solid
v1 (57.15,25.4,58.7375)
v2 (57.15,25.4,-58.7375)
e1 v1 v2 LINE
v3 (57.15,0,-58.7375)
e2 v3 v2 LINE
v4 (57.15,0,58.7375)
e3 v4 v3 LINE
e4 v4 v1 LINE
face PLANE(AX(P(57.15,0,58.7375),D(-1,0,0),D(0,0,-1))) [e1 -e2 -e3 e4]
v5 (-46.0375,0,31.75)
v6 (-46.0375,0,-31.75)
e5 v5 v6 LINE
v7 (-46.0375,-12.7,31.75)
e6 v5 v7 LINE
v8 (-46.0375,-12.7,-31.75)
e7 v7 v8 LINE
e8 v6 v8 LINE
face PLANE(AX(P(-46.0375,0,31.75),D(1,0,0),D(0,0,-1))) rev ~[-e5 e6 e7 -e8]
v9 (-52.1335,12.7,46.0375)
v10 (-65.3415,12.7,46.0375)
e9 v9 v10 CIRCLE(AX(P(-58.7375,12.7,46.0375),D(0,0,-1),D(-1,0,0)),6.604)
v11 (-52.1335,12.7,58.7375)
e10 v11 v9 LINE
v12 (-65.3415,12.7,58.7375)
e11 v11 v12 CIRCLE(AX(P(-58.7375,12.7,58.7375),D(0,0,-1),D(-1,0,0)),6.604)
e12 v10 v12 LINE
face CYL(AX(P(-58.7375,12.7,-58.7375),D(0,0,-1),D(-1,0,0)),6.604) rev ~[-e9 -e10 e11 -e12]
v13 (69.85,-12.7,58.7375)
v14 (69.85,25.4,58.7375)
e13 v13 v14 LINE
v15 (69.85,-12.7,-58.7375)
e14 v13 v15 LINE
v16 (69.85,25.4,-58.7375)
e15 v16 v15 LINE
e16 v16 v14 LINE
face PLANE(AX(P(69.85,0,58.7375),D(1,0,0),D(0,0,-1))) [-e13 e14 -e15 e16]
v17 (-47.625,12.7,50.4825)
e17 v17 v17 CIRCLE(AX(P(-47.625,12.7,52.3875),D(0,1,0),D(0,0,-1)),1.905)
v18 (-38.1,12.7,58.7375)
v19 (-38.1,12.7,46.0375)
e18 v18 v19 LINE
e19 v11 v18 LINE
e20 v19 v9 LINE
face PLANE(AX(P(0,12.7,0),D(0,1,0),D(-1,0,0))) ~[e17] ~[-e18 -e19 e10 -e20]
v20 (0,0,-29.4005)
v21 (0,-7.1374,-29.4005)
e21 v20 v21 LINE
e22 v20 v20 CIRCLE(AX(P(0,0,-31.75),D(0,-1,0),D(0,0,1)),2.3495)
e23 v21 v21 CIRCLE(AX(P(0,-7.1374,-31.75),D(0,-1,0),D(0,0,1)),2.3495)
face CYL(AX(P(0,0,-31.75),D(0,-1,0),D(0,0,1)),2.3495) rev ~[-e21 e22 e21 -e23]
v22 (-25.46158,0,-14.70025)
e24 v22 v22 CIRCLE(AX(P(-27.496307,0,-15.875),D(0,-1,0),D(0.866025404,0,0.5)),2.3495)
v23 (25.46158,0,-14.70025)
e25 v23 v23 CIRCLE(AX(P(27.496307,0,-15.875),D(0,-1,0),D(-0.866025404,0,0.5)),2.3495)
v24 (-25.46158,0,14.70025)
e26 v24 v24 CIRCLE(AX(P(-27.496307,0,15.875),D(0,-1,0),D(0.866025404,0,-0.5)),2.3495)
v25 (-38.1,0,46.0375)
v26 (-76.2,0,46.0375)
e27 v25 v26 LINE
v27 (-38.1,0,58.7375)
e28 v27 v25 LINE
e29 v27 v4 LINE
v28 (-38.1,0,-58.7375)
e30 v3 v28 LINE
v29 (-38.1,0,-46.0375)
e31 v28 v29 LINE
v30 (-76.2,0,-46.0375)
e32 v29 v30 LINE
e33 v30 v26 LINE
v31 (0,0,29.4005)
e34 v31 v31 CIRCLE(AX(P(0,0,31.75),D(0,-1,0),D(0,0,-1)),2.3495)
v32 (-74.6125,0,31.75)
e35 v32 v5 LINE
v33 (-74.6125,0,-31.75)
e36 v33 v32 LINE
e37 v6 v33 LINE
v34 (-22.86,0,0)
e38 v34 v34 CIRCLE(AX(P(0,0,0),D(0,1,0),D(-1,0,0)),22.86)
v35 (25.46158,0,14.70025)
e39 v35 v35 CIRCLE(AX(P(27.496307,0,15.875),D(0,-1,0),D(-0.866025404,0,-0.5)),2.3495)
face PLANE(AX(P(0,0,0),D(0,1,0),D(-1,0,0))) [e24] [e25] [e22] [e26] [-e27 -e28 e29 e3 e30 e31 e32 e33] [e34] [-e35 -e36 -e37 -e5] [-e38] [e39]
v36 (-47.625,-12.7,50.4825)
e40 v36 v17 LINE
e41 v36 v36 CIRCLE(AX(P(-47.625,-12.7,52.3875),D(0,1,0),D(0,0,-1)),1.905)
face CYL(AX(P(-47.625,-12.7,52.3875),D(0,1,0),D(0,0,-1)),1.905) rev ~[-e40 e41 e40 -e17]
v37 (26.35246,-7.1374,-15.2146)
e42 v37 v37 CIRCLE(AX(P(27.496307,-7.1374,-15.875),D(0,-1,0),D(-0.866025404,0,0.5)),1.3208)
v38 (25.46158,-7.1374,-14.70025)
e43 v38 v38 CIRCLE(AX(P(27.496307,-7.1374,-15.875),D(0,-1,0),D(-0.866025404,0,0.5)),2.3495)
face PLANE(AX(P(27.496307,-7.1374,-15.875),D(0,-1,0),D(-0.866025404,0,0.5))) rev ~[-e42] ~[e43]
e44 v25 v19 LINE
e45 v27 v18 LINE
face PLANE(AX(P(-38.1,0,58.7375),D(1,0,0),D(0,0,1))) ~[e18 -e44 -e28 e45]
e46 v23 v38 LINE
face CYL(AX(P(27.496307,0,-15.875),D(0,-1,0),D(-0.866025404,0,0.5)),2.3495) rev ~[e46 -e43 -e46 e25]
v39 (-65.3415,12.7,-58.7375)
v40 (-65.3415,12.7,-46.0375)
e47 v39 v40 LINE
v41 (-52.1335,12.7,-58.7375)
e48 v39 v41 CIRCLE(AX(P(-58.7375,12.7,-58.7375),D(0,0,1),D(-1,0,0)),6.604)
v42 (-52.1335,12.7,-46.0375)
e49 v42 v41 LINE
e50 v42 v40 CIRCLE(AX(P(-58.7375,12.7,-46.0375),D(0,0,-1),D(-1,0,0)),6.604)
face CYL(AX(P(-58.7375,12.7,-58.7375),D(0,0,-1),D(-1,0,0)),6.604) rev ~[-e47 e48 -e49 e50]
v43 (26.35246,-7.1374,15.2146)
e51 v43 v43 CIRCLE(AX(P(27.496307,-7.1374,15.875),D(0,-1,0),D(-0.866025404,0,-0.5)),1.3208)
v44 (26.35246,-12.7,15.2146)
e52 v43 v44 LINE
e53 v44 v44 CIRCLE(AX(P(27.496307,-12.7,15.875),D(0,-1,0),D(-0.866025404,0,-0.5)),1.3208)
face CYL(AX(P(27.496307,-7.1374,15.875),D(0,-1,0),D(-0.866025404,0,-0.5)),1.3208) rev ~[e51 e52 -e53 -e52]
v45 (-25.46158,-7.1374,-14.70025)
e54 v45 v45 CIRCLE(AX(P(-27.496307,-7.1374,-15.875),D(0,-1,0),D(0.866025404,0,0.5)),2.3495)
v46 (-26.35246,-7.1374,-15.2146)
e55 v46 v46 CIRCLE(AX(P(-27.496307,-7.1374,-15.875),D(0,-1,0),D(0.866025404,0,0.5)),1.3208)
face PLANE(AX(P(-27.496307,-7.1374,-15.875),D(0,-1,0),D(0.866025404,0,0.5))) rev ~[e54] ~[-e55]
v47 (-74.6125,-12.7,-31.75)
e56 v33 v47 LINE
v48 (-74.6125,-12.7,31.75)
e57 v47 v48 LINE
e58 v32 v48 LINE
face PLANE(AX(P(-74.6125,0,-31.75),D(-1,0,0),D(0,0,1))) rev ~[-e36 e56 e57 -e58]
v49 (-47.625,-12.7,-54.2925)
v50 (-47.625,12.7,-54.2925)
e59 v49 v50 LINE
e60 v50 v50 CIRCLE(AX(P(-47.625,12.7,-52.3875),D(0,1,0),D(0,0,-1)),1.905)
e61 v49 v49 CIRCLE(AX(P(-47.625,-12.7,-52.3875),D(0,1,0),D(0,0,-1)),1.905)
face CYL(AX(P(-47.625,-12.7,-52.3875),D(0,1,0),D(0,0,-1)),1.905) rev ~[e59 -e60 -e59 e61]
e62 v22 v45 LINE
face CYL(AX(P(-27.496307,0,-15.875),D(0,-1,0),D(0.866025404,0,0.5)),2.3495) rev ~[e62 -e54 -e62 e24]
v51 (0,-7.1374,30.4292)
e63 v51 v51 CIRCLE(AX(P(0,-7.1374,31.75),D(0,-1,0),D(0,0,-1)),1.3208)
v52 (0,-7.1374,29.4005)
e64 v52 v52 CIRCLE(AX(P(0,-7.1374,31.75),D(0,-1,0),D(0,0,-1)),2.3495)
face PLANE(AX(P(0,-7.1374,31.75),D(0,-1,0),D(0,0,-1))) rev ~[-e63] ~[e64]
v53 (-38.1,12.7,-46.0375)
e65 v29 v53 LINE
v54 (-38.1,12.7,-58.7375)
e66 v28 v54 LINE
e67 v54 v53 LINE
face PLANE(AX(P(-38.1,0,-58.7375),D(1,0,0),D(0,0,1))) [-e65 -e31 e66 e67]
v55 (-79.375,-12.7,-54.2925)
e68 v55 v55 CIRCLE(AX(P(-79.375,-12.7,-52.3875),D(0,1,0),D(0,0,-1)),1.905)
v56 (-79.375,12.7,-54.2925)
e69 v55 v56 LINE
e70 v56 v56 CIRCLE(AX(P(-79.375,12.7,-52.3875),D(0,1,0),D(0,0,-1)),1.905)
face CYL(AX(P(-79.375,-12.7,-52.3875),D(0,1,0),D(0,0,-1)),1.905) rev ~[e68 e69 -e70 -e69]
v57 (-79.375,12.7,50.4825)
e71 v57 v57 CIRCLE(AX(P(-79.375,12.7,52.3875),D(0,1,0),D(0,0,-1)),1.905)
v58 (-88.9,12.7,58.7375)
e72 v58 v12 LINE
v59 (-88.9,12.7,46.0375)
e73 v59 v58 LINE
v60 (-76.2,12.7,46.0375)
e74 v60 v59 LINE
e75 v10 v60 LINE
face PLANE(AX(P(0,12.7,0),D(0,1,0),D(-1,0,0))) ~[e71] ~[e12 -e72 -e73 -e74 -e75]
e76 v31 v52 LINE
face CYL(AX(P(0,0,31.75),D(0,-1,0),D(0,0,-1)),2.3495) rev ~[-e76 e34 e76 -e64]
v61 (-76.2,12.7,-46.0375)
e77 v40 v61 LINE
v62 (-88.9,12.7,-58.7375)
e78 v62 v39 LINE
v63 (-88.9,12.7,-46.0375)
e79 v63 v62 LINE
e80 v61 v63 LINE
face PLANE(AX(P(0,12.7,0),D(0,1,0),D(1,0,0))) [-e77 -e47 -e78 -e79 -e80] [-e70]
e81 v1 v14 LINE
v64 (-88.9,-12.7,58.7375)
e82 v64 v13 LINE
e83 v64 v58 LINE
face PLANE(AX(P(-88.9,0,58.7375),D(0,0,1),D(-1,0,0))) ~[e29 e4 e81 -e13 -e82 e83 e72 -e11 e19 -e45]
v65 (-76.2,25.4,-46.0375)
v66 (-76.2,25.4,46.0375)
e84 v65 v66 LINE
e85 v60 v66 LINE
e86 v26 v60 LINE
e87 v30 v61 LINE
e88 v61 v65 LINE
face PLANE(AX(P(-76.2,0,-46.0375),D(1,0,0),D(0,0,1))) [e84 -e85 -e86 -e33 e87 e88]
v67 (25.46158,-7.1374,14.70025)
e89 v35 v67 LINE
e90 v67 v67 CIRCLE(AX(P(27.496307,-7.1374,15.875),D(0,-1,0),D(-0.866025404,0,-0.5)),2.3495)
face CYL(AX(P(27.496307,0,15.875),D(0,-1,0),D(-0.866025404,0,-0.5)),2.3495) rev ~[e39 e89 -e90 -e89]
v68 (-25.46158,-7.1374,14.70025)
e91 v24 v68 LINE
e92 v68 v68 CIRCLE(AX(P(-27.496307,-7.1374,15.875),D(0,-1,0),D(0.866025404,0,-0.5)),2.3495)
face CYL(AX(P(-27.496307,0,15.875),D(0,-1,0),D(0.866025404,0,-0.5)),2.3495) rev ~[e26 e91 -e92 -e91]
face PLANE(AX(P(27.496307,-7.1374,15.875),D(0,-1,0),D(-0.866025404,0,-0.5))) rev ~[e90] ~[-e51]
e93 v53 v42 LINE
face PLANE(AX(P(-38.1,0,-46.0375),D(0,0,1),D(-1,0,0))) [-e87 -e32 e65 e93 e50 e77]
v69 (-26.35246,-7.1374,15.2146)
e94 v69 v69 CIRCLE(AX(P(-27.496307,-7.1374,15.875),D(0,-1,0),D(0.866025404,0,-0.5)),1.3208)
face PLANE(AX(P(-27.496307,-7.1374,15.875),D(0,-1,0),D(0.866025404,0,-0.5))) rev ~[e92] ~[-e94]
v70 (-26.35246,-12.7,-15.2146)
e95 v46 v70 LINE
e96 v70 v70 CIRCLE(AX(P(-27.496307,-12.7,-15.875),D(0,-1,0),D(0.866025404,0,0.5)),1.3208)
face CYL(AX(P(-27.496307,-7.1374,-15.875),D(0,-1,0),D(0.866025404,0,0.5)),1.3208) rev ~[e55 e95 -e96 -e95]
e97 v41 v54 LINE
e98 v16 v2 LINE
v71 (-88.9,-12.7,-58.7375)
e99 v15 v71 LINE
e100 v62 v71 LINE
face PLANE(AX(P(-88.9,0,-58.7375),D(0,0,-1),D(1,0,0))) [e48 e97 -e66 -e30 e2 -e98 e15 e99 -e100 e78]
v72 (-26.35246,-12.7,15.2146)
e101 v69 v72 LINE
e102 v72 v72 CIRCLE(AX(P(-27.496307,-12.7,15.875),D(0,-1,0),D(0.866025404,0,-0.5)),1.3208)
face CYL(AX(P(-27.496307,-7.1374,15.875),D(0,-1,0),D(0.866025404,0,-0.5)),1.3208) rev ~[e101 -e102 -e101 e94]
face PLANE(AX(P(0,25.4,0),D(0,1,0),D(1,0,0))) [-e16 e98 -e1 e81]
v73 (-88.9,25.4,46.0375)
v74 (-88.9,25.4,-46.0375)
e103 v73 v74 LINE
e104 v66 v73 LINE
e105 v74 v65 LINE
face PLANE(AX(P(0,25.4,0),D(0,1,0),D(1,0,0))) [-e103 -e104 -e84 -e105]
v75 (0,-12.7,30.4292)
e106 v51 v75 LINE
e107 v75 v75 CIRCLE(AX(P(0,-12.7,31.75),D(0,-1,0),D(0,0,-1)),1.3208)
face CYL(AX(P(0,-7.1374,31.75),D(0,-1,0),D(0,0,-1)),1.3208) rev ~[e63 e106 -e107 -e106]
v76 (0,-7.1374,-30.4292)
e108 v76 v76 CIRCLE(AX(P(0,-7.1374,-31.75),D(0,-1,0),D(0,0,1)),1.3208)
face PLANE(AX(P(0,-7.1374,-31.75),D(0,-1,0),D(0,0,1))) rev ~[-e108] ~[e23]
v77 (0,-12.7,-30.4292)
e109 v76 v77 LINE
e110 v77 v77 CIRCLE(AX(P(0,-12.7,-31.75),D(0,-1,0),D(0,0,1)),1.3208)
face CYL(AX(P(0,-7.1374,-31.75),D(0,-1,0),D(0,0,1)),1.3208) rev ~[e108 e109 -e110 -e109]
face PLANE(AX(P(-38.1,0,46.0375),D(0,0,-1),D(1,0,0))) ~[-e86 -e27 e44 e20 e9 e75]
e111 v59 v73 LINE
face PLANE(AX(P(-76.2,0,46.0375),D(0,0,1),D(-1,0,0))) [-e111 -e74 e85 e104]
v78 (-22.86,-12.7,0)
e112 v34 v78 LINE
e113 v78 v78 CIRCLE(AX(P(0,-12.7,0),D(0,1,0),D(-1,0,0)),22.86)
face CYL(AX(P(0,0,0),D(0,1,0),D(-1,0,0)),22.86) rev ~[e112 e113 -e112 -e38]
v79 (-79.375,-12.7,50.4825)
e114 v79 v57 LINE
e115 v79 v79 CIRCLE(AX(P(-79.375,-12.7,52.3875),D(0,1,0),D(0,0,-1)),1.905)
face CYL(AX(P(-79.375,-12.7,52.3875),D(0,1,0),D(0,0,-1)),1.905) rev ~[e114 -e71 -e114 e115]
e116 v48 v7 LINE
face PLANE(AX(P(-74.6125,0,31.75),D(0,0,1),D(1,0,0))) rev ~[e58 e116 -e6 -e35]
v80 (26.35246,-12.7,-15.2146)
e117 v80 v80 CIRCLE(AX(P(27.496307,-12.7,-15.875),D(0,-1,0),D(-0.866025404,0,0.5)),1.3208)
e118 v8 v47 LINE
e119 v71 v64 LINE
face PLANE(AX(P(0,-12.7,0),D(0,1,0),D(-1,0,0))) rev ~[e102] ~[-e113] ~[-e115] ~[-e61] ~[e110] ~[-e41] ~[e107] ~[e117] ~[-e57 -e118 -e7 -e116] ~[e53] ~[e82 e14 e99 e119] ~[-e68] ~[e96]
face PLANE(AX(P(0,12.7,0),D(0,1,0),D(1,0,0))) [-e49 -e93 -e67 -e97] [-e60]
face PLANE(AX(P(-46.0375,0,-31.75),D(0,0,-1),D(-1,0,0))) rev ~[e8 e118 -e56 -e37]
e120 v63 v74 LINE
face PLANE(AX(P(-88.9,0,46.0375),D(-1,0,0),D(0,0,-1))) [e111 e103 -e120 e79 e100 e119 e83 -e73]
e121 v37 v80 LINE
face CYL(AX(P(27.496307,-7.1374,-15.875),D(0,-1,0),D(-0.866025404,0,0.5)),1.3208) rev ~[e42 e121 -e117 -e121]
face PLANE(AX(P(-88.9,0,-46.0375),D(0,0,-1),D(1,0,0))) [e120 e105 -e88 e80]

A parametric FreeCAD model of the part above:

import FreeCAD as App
import Part
import Sketcher

V = App.Vector
Q = App.Units.Quantity


def add_polygon(sketch, points):
    """Adds a closed chain of lines whose ends are joined by coincident constraints."""
    first, n = sketch.GeometryCount, len(points)
    for a, b in zip(points, points[1:] + points[:1]):
        sketch.addGeometry(Part.LineSegment(App.Vector(*a, 0), App.Vector(*b, 0)), False)
    for i in range(n):
        sketch.addConstraint(Sketcher.Constraint("Coincident", first + i, 2, first + (i + 1) % n, 1))

doc = App.newDocument("Part")
body = doc.addObject("PartDesign::Body", "Body")

# Sketch on XZ plane
sketch1 = doc.addObject("Sketcher::SketchObject", "Sketch")
body.addObject(sketch1)
sketch1.AttachmentSupport = (doc.XZ_Plane, [""])
sketch1.MapMode = "FlatFace"
add_polygon(sketch1, [(-88.9, -58.7375), (-88.9, 58.7375), (88.9, 58.7375), (88.9, -58.7375)])  # lines 0-3
sketch1.addGeometry(Part.Circle(V(0, 0, 0), V(0, 0, 1), 22.86), False)  # 4
sketch1.addConstraint(Sketcher.Constraint("Vertical", 0))
sketch1.addConstraint(Sketcher.Constraint("Horizontal", 1))
sketch1.addConstraint(Sketcher.Constraint("Vertical", 2))
sketch1.addConstraint(Sketcher.Constraint("Horizontal", 3))
sketch1.addConstraint(Sketcher.Constraint("Coincident", 4, 3, -1, 1))
sketch1.addConstraint(Sketcher.Constraint("Symmetric", 0, 2, 2, 2, -1, 1))
sketch1.addConstraint(Sketcher.Constraint("Diameter", 4, Q("1.8 in")))
sketch1.addConstraint(Sketcher.Constraint("DistanceX", 1, 1, 1, 2, Q("7 in")))
sketch1.addConstraint(Sketcher.Constraint("DistanceY", 0, 1, 0, 2, Q("4.625 in")))
pad1 = doc.addObject("PartDesign::Pad", "Pad")
body.addObject(pad1)
pad1.Profile = sketch1
pad1.Length = Q("0.5 in")

# Sketch on XZ plane
sketch2 = doc.addObject("Sketcher::SketchObject", "Sketch001")
body.addObject(sketch2)
sketch2.AttachmentSupport = (doc.XZ_Plane, [""])
sketch2.MapMode = "FlatFace"
sketch2.addGeometry(Part.Circle(V(0, -31.75, 0), V(0, 0, 1), 1.3208), False)
sketch2.addConstraint(Sketcher.Constraint("PointOnObject", 0, 3, -2))
sketch2.addConstraint(Sketcher.Constraint("Diameter", 0, Q("0.104 in")))
sketch2.addConstraint(Sketcher.Constraint("DistanceY", 0, 3, -1, 1, Q("1.25 in")))
doc.recompute()
hole = doc.addObject("PartDesign::Hole", "Hole")
body.addObject(hole)
hole.Profile = sketch2
hole.ThreadType = "None"
hole.Diameter = Q("0.104 in")
hole.DepthType = "ThroughAll"
hole.HoleCutType = "Counterbore"
hole.HoleCutDiameter = Q("0.185 in")
hole.HoleCutDepth = Q("0.281 in")
hole.Reversed = True
doc.recompute()

polarpattern = doc.addObject("PartDesign::PolarPattern", "PolarPattern")
body.addObject(polarpattern)
polarpattern.Originals = [hole]
polarpattern.Axis = (doc.Y_Axis, [""])
polarpattern.Angle = 360
polarpattern.Occurrences = 6
body.Tip = polarpattern

# Sketch on XZ plane
sketch3 = doc.addObject("Sketcher::SketchObject", "Sketch002")
body.addObject(sketch3)
sketch3.AttachmentSupport = (doc.XZ_Plane, [""])
sketch3.MapMode = "FlatFace"
add_polygon(sketch3, [(-88.9, -58.7375), (-88.9, -46.0375), (-38.1, -46.0375), (-38.1, -58.7375)])  # lines 0-3
sketch3.addConstraint(Sketcher.Constraint("Vertical", 0))
sketch3.addConstraint(Sketcher.Constraint("Horizontal", 1))
sketch3.addConstraint(Sketcher.Constraint("Vertical", 2))
sketch3.addConstraint(Sketcher.Constraint("Horizontal", 3))
sketch3.addConstraint(Sketcher.Constraint("DistanceX", 1, 1, 1, 2, Q("2 in")))
sketch3.addConstraint(Sketcher.Constraint("DistanceY", 0, 1, 0, 2, Q("0.5 in")))
sketch3.addConstraint(Sketcher.Constraint("DistanceX", 0, 2, -1, 1, Q("3.5 in")))
sketch3.addConstraint(Sketcher.Constraint("DistanceY", 0, 2, -1, 1, Q("1.8125 in")))
pad2 = doc.addObject("PartDesign::Pad", "Pad001")
body.addObject(pad2)
pad2.Profile = sketch3
pad2.Length = Q("0.5 in")
pad2.Reversed = True
doc.recompute()

mirrored = doc.addObject("PartDesign::Mirrored", "Mirrored")
body.addObject(mirrored)
mirrored.Originals = [pad2]
mirrored.MirrorPlane = (doc.XY_Plane, [""])
body.Tip = mirrored

# Sketch on XY plane
sketch4 = doc.addObject("Sketcher::SketchObject", "Sketch003")
body.addObject(sketch4)
sketch4.AttachmentSupport = (doc.XY_Plane, [""])
sketch4.MapMode = "FlatFace"
sketch4.AttachmentOffset = App.Placement(V(0, 0, -2.3125 * 25.4), App.Rotation())
sketch4.addGeometry(Part.Circle(V(-58.7375, 12.7, 0), V(0, 0, 1), 6.604), False)
sketch4.addConstraint(Sketcher.Constraint("Diameter", 0, Q("0.52 in")))
sketch4.addConstraint(Sketcher.Constraint("DistanceY", -1, 1, 0, 3, Q("0.5 in")))
sketch4.addConstraint(Sketcher.Constraint("DistanceX", 0, 3, -1, 1, Q("2.3125 in")))
pocket1 = doc.addObject("PartDesign::Pocket", "Pocket")
body.addObject(pocket1)
pocket1.Profile = sketch4
pocket1.Type = "ThroughAll"
pocket1.Reversed = True

# Sketch on XZ plane
sketch5 = doc.addObject("Sketcher::SketchObject", "Sketch004")
body.addObject(sketch5)
sketch5.AttachmentSupport = (doc.XZ_Plane, [""])
sketch5.MapMode = "FlatFace"
add_polygon(sketch5, [(-76.2, -46.0375), (-88.9, -46.0375), (-88.9, 46.0375), (-76.2, 46.0375)])  # lines 0-3
sketch5.addConstraint(Sketcher.Constraint("Horizontal", 0))
sketch5.addConstraint(Sketcher.Constraint("Vertical", 1))
sketch5.addConstraint(Sketcher.Constraint("Horizontal", 2))
sketch5.addConstraint(Sketcher.Constraint("Vertical", 3))
sketch5.addConstraint(Sketcher.Constraint("DistanceX", 0, 2, 0, 1, Q("0.5 in")))
sketch5.addConstraint(Sketcher.Constraint("DistanceX", 2, 2, -1, 1, Q("3 in")))
sketch5.addConstraint(Sketcher.Constraint("DistanceY", 1, 1, 1, 2, Q("3.625 in")))
sketch5.addConstraint(Sketcher.Constraint("DistanceY", 0, 2, -1, 1, Q("1.8125 in")))
pad3 = doc.addObject("PartDesign::Pad", "Pad002")
body.addObject(pad3)
pad3.Profile = sketch5
pad3.Length = Q("1 in")
pad3.Reversed = True

# Sketch on XZ plane
sketch6 = doc.addObject("Sketcher::SketchObject", "Sketch005")
body.addObject(sketch6)
sketch6.AttachmentSupport = (doc.XZ_Plane, [""])
sketch6.MapMode = "FlatFace"
add_polygon(sketch6, [(69.85, 58.7375), (69.85, -58.7375), (57.15, -58.7375), (57.15, 58.7375)])  # lines 0-3
sketch6.addConstraint(Sketcher.Constraint("Vertical", 0))
sketch6.addConstraint(Sketcher.Constraint("Horizontal", 1))
sketch6.addConstraint(Sketcher.Constraint("Vertical", 2))
sketch6.addConstraint(Sketcher.Constraint("Horizontal", 3))
sketch6.addConstraint(Sketcher.Constraint("DistanceX", 1, 2, 1, 1, Q("0.5 in")))
sketch6.addConstraint(Sketcher.Constraint("DistanceY", 0, 2, 0, 1, Q("4.625 in")))
sketch6.addConstraint(Sketcher.Constraint("DistanceX", -1, 1, 0, 2, Q("2.75 in")))
sketch6.addConstraint(Sketcher.Constraint("DistanceY", 0, 2, -1, 1, Q("2.3125 in")))
pad4 = doc.addObject("PartDesign::Pad", "Pad003")
body.addObject(pad4)
pad4.Profile = sketch6
pad4.Length = Q("1 in")
pad4.Reversed = True

# Sketch on XZ plane
sketch7 = doc.addObject("Sketcher::SketchObject", "Sketch006")
body.addObject(sketch7)
sketch7.AttachmentSupport = (doc.XZ_Plane, [""])
sketch7.MapMode = "FlatFace"
add_polygon(sketch7, [(88.9, 58.7375), (88.9, -58.7375), (69.85, -58.7375), (69.85, 58.7375)])  # lines 0-3
sketch7.addConstraint(Sketcher.Constraint("Vertical", 0))
sketch7.addConstraint(Sketcher.Constraint("Horizontal", 1))
sketch7.addConstraint(Sketcher.Constraint("Vertical", 2))
sketch7.addConstraint(Sketcher.Constraint("Horizontal", 3))
sketch7.addConstraint(Sketcher.Constraint("DistanceX", 1, 2, 1, 1, Q("0.75 in")))
sketch7.addConstraint(Sketcher.Constraint("DistanceX", -1, 1, 0, 2, Q("3.5 in")))
sketch7.addConstraint(Sketcher.Constraint("DistanceY", 0, 2, 0, 1, Q("4.625 in")))
sketch7.addConstraint(Sketcher.Constraint("DistanceY", 0, 2, -1, 1, Q("2.3125 in")))
pocket2 = doc.addObject("PartDesign::Pocket", "Pocket001")
body.addObject(pocket2)
pocket2.Profile = sketch7
pocket2.Type = "ThroughAll"
pocket2.Reversed = True

# Sketch on XZ plane
sketch8 = doc.addObject("Sketcher::SketchObject", "Sketch007")
body.addObject(sketch8)
sketch8.AttachmentSupport = (doc.XZ_Plane, [""])
sketch8.MapMode = "FlatFace"
sketch8.AttachmentOffset = App.Placement(V(0, 0, 0.5 * 25.4), App.Rotation())
sketch8.addGeometry(Part.Circle(V(-79.375, -52.3875, 0), V(0, 0, 1), 1.905), False)
sketch8.addGeometry(Part.Circle(V(-47.625, -52.3875, 0), V(0, 0, 1), 1.905), False)
sketch8.addGeometry(Part.Circle(V(-79.375, 52.3875, 0), V(0, 0, 1), 1.905), False)
sketch8.addGeometry(Part.Circle(V(-47.625, 52.3875, 0), V(0, 0, 1), 1.905), False)
sketch8.addConstraint(Sketcher.Constraint("Equal", 0, 1))
sketch8.addConstraint(Sketcher.Constraint("Equal", 1, 2))
sketch8.addConstraint(Sketcher.Constraint("Equal", 2, 3))
sketch8.addConstraint(Sketcher.Constraint("Symmetric", 0, 3, 2, 3, -1))
sketch8.addConstraint(Sketcher.Constraint("Symmetric", 1, 3, 3, 3, -1))
sketch8.addConstraint(Sketcher.Constraint("Horizontal", 0, 3, 1, 3))
sketch8.addConstraint(Sketcher.Constraint("Diameter", 0, Q("0.15 in")))
sketch8.addConstraint(Sketcher.Constraint("DistanceX", 0, 3, 1, 3, Q("1.25 in")))
sketch8.addConstraint(Sketcher.Constraint("DistanceX", 0, 3, -1, 1, Q("3.125 in")))
sketch8.addConstraint(Sketcher.Constraint("DistanceY", 0, 3, -1, 1, Q("2.0625 in")))
doc.recompute()
hole2 = doc.addObject("PartDesign::Hole", "Hole001")
body.addObject(hole2)
hole2.Profile = sketch8
hole2.ThreadType = "None"
hole2.Diameter = Q("0.15 in")
hole2.DepthType = "ThroughAll"

# Sketch on XZ plane
sketch9 = doc.addObject("Sketcher::SketchObject", "Sketch008")
body.addObject(sketch9)
sketch9.AttachmentSupport = (doc.XZ_Plane, [""])
sketch9.MapMode = "FlatFace"
add_polygon(sketch9, [(-46.0375, -31.75), (-74.6125, -31.75), (-74.6125, 31.75), (-46.0375, 31.75)])  # lines 0-3
sketch9.addConstraint(Sketcher.Constraint("Horizontal", 0))
sketch9.addConstraint(Sketcher.Constraint("Vertical", 1))
sketch9.addConstraint(Sketcher.Constraint("Horizontal", 2))
sketch9.addConstraint(Sketcher.Constraint("Vertical", 3))
sketch9.addConstraint(Sketcher.Constraint("DistanceY", 1, 1, 1, 2, Q("2.5 in")))
sketch9.addConstraint(Sketcher.Constraint("DistanceX", 0, 2, 0, 1, Q("1.125 in")))
sketch9.addConstraint(Sketcher.Constraint("DistanceY", 0, 2, -1, 1, Q("1.25 in")))
sketch9.addConstraint(Sketcher.Constraint("DistanceX", 0, 2, -1, 1, Q("2.9375 in")))
pocket3 = doc.addObject("PartDesign::Pocket", "Pocket002")
body.addObject(pocket3)
pocket3.Profile = sketch9
pocket3.Length = Q("0.5 in")
pocket3.Reversed = True

doc.recompute()
